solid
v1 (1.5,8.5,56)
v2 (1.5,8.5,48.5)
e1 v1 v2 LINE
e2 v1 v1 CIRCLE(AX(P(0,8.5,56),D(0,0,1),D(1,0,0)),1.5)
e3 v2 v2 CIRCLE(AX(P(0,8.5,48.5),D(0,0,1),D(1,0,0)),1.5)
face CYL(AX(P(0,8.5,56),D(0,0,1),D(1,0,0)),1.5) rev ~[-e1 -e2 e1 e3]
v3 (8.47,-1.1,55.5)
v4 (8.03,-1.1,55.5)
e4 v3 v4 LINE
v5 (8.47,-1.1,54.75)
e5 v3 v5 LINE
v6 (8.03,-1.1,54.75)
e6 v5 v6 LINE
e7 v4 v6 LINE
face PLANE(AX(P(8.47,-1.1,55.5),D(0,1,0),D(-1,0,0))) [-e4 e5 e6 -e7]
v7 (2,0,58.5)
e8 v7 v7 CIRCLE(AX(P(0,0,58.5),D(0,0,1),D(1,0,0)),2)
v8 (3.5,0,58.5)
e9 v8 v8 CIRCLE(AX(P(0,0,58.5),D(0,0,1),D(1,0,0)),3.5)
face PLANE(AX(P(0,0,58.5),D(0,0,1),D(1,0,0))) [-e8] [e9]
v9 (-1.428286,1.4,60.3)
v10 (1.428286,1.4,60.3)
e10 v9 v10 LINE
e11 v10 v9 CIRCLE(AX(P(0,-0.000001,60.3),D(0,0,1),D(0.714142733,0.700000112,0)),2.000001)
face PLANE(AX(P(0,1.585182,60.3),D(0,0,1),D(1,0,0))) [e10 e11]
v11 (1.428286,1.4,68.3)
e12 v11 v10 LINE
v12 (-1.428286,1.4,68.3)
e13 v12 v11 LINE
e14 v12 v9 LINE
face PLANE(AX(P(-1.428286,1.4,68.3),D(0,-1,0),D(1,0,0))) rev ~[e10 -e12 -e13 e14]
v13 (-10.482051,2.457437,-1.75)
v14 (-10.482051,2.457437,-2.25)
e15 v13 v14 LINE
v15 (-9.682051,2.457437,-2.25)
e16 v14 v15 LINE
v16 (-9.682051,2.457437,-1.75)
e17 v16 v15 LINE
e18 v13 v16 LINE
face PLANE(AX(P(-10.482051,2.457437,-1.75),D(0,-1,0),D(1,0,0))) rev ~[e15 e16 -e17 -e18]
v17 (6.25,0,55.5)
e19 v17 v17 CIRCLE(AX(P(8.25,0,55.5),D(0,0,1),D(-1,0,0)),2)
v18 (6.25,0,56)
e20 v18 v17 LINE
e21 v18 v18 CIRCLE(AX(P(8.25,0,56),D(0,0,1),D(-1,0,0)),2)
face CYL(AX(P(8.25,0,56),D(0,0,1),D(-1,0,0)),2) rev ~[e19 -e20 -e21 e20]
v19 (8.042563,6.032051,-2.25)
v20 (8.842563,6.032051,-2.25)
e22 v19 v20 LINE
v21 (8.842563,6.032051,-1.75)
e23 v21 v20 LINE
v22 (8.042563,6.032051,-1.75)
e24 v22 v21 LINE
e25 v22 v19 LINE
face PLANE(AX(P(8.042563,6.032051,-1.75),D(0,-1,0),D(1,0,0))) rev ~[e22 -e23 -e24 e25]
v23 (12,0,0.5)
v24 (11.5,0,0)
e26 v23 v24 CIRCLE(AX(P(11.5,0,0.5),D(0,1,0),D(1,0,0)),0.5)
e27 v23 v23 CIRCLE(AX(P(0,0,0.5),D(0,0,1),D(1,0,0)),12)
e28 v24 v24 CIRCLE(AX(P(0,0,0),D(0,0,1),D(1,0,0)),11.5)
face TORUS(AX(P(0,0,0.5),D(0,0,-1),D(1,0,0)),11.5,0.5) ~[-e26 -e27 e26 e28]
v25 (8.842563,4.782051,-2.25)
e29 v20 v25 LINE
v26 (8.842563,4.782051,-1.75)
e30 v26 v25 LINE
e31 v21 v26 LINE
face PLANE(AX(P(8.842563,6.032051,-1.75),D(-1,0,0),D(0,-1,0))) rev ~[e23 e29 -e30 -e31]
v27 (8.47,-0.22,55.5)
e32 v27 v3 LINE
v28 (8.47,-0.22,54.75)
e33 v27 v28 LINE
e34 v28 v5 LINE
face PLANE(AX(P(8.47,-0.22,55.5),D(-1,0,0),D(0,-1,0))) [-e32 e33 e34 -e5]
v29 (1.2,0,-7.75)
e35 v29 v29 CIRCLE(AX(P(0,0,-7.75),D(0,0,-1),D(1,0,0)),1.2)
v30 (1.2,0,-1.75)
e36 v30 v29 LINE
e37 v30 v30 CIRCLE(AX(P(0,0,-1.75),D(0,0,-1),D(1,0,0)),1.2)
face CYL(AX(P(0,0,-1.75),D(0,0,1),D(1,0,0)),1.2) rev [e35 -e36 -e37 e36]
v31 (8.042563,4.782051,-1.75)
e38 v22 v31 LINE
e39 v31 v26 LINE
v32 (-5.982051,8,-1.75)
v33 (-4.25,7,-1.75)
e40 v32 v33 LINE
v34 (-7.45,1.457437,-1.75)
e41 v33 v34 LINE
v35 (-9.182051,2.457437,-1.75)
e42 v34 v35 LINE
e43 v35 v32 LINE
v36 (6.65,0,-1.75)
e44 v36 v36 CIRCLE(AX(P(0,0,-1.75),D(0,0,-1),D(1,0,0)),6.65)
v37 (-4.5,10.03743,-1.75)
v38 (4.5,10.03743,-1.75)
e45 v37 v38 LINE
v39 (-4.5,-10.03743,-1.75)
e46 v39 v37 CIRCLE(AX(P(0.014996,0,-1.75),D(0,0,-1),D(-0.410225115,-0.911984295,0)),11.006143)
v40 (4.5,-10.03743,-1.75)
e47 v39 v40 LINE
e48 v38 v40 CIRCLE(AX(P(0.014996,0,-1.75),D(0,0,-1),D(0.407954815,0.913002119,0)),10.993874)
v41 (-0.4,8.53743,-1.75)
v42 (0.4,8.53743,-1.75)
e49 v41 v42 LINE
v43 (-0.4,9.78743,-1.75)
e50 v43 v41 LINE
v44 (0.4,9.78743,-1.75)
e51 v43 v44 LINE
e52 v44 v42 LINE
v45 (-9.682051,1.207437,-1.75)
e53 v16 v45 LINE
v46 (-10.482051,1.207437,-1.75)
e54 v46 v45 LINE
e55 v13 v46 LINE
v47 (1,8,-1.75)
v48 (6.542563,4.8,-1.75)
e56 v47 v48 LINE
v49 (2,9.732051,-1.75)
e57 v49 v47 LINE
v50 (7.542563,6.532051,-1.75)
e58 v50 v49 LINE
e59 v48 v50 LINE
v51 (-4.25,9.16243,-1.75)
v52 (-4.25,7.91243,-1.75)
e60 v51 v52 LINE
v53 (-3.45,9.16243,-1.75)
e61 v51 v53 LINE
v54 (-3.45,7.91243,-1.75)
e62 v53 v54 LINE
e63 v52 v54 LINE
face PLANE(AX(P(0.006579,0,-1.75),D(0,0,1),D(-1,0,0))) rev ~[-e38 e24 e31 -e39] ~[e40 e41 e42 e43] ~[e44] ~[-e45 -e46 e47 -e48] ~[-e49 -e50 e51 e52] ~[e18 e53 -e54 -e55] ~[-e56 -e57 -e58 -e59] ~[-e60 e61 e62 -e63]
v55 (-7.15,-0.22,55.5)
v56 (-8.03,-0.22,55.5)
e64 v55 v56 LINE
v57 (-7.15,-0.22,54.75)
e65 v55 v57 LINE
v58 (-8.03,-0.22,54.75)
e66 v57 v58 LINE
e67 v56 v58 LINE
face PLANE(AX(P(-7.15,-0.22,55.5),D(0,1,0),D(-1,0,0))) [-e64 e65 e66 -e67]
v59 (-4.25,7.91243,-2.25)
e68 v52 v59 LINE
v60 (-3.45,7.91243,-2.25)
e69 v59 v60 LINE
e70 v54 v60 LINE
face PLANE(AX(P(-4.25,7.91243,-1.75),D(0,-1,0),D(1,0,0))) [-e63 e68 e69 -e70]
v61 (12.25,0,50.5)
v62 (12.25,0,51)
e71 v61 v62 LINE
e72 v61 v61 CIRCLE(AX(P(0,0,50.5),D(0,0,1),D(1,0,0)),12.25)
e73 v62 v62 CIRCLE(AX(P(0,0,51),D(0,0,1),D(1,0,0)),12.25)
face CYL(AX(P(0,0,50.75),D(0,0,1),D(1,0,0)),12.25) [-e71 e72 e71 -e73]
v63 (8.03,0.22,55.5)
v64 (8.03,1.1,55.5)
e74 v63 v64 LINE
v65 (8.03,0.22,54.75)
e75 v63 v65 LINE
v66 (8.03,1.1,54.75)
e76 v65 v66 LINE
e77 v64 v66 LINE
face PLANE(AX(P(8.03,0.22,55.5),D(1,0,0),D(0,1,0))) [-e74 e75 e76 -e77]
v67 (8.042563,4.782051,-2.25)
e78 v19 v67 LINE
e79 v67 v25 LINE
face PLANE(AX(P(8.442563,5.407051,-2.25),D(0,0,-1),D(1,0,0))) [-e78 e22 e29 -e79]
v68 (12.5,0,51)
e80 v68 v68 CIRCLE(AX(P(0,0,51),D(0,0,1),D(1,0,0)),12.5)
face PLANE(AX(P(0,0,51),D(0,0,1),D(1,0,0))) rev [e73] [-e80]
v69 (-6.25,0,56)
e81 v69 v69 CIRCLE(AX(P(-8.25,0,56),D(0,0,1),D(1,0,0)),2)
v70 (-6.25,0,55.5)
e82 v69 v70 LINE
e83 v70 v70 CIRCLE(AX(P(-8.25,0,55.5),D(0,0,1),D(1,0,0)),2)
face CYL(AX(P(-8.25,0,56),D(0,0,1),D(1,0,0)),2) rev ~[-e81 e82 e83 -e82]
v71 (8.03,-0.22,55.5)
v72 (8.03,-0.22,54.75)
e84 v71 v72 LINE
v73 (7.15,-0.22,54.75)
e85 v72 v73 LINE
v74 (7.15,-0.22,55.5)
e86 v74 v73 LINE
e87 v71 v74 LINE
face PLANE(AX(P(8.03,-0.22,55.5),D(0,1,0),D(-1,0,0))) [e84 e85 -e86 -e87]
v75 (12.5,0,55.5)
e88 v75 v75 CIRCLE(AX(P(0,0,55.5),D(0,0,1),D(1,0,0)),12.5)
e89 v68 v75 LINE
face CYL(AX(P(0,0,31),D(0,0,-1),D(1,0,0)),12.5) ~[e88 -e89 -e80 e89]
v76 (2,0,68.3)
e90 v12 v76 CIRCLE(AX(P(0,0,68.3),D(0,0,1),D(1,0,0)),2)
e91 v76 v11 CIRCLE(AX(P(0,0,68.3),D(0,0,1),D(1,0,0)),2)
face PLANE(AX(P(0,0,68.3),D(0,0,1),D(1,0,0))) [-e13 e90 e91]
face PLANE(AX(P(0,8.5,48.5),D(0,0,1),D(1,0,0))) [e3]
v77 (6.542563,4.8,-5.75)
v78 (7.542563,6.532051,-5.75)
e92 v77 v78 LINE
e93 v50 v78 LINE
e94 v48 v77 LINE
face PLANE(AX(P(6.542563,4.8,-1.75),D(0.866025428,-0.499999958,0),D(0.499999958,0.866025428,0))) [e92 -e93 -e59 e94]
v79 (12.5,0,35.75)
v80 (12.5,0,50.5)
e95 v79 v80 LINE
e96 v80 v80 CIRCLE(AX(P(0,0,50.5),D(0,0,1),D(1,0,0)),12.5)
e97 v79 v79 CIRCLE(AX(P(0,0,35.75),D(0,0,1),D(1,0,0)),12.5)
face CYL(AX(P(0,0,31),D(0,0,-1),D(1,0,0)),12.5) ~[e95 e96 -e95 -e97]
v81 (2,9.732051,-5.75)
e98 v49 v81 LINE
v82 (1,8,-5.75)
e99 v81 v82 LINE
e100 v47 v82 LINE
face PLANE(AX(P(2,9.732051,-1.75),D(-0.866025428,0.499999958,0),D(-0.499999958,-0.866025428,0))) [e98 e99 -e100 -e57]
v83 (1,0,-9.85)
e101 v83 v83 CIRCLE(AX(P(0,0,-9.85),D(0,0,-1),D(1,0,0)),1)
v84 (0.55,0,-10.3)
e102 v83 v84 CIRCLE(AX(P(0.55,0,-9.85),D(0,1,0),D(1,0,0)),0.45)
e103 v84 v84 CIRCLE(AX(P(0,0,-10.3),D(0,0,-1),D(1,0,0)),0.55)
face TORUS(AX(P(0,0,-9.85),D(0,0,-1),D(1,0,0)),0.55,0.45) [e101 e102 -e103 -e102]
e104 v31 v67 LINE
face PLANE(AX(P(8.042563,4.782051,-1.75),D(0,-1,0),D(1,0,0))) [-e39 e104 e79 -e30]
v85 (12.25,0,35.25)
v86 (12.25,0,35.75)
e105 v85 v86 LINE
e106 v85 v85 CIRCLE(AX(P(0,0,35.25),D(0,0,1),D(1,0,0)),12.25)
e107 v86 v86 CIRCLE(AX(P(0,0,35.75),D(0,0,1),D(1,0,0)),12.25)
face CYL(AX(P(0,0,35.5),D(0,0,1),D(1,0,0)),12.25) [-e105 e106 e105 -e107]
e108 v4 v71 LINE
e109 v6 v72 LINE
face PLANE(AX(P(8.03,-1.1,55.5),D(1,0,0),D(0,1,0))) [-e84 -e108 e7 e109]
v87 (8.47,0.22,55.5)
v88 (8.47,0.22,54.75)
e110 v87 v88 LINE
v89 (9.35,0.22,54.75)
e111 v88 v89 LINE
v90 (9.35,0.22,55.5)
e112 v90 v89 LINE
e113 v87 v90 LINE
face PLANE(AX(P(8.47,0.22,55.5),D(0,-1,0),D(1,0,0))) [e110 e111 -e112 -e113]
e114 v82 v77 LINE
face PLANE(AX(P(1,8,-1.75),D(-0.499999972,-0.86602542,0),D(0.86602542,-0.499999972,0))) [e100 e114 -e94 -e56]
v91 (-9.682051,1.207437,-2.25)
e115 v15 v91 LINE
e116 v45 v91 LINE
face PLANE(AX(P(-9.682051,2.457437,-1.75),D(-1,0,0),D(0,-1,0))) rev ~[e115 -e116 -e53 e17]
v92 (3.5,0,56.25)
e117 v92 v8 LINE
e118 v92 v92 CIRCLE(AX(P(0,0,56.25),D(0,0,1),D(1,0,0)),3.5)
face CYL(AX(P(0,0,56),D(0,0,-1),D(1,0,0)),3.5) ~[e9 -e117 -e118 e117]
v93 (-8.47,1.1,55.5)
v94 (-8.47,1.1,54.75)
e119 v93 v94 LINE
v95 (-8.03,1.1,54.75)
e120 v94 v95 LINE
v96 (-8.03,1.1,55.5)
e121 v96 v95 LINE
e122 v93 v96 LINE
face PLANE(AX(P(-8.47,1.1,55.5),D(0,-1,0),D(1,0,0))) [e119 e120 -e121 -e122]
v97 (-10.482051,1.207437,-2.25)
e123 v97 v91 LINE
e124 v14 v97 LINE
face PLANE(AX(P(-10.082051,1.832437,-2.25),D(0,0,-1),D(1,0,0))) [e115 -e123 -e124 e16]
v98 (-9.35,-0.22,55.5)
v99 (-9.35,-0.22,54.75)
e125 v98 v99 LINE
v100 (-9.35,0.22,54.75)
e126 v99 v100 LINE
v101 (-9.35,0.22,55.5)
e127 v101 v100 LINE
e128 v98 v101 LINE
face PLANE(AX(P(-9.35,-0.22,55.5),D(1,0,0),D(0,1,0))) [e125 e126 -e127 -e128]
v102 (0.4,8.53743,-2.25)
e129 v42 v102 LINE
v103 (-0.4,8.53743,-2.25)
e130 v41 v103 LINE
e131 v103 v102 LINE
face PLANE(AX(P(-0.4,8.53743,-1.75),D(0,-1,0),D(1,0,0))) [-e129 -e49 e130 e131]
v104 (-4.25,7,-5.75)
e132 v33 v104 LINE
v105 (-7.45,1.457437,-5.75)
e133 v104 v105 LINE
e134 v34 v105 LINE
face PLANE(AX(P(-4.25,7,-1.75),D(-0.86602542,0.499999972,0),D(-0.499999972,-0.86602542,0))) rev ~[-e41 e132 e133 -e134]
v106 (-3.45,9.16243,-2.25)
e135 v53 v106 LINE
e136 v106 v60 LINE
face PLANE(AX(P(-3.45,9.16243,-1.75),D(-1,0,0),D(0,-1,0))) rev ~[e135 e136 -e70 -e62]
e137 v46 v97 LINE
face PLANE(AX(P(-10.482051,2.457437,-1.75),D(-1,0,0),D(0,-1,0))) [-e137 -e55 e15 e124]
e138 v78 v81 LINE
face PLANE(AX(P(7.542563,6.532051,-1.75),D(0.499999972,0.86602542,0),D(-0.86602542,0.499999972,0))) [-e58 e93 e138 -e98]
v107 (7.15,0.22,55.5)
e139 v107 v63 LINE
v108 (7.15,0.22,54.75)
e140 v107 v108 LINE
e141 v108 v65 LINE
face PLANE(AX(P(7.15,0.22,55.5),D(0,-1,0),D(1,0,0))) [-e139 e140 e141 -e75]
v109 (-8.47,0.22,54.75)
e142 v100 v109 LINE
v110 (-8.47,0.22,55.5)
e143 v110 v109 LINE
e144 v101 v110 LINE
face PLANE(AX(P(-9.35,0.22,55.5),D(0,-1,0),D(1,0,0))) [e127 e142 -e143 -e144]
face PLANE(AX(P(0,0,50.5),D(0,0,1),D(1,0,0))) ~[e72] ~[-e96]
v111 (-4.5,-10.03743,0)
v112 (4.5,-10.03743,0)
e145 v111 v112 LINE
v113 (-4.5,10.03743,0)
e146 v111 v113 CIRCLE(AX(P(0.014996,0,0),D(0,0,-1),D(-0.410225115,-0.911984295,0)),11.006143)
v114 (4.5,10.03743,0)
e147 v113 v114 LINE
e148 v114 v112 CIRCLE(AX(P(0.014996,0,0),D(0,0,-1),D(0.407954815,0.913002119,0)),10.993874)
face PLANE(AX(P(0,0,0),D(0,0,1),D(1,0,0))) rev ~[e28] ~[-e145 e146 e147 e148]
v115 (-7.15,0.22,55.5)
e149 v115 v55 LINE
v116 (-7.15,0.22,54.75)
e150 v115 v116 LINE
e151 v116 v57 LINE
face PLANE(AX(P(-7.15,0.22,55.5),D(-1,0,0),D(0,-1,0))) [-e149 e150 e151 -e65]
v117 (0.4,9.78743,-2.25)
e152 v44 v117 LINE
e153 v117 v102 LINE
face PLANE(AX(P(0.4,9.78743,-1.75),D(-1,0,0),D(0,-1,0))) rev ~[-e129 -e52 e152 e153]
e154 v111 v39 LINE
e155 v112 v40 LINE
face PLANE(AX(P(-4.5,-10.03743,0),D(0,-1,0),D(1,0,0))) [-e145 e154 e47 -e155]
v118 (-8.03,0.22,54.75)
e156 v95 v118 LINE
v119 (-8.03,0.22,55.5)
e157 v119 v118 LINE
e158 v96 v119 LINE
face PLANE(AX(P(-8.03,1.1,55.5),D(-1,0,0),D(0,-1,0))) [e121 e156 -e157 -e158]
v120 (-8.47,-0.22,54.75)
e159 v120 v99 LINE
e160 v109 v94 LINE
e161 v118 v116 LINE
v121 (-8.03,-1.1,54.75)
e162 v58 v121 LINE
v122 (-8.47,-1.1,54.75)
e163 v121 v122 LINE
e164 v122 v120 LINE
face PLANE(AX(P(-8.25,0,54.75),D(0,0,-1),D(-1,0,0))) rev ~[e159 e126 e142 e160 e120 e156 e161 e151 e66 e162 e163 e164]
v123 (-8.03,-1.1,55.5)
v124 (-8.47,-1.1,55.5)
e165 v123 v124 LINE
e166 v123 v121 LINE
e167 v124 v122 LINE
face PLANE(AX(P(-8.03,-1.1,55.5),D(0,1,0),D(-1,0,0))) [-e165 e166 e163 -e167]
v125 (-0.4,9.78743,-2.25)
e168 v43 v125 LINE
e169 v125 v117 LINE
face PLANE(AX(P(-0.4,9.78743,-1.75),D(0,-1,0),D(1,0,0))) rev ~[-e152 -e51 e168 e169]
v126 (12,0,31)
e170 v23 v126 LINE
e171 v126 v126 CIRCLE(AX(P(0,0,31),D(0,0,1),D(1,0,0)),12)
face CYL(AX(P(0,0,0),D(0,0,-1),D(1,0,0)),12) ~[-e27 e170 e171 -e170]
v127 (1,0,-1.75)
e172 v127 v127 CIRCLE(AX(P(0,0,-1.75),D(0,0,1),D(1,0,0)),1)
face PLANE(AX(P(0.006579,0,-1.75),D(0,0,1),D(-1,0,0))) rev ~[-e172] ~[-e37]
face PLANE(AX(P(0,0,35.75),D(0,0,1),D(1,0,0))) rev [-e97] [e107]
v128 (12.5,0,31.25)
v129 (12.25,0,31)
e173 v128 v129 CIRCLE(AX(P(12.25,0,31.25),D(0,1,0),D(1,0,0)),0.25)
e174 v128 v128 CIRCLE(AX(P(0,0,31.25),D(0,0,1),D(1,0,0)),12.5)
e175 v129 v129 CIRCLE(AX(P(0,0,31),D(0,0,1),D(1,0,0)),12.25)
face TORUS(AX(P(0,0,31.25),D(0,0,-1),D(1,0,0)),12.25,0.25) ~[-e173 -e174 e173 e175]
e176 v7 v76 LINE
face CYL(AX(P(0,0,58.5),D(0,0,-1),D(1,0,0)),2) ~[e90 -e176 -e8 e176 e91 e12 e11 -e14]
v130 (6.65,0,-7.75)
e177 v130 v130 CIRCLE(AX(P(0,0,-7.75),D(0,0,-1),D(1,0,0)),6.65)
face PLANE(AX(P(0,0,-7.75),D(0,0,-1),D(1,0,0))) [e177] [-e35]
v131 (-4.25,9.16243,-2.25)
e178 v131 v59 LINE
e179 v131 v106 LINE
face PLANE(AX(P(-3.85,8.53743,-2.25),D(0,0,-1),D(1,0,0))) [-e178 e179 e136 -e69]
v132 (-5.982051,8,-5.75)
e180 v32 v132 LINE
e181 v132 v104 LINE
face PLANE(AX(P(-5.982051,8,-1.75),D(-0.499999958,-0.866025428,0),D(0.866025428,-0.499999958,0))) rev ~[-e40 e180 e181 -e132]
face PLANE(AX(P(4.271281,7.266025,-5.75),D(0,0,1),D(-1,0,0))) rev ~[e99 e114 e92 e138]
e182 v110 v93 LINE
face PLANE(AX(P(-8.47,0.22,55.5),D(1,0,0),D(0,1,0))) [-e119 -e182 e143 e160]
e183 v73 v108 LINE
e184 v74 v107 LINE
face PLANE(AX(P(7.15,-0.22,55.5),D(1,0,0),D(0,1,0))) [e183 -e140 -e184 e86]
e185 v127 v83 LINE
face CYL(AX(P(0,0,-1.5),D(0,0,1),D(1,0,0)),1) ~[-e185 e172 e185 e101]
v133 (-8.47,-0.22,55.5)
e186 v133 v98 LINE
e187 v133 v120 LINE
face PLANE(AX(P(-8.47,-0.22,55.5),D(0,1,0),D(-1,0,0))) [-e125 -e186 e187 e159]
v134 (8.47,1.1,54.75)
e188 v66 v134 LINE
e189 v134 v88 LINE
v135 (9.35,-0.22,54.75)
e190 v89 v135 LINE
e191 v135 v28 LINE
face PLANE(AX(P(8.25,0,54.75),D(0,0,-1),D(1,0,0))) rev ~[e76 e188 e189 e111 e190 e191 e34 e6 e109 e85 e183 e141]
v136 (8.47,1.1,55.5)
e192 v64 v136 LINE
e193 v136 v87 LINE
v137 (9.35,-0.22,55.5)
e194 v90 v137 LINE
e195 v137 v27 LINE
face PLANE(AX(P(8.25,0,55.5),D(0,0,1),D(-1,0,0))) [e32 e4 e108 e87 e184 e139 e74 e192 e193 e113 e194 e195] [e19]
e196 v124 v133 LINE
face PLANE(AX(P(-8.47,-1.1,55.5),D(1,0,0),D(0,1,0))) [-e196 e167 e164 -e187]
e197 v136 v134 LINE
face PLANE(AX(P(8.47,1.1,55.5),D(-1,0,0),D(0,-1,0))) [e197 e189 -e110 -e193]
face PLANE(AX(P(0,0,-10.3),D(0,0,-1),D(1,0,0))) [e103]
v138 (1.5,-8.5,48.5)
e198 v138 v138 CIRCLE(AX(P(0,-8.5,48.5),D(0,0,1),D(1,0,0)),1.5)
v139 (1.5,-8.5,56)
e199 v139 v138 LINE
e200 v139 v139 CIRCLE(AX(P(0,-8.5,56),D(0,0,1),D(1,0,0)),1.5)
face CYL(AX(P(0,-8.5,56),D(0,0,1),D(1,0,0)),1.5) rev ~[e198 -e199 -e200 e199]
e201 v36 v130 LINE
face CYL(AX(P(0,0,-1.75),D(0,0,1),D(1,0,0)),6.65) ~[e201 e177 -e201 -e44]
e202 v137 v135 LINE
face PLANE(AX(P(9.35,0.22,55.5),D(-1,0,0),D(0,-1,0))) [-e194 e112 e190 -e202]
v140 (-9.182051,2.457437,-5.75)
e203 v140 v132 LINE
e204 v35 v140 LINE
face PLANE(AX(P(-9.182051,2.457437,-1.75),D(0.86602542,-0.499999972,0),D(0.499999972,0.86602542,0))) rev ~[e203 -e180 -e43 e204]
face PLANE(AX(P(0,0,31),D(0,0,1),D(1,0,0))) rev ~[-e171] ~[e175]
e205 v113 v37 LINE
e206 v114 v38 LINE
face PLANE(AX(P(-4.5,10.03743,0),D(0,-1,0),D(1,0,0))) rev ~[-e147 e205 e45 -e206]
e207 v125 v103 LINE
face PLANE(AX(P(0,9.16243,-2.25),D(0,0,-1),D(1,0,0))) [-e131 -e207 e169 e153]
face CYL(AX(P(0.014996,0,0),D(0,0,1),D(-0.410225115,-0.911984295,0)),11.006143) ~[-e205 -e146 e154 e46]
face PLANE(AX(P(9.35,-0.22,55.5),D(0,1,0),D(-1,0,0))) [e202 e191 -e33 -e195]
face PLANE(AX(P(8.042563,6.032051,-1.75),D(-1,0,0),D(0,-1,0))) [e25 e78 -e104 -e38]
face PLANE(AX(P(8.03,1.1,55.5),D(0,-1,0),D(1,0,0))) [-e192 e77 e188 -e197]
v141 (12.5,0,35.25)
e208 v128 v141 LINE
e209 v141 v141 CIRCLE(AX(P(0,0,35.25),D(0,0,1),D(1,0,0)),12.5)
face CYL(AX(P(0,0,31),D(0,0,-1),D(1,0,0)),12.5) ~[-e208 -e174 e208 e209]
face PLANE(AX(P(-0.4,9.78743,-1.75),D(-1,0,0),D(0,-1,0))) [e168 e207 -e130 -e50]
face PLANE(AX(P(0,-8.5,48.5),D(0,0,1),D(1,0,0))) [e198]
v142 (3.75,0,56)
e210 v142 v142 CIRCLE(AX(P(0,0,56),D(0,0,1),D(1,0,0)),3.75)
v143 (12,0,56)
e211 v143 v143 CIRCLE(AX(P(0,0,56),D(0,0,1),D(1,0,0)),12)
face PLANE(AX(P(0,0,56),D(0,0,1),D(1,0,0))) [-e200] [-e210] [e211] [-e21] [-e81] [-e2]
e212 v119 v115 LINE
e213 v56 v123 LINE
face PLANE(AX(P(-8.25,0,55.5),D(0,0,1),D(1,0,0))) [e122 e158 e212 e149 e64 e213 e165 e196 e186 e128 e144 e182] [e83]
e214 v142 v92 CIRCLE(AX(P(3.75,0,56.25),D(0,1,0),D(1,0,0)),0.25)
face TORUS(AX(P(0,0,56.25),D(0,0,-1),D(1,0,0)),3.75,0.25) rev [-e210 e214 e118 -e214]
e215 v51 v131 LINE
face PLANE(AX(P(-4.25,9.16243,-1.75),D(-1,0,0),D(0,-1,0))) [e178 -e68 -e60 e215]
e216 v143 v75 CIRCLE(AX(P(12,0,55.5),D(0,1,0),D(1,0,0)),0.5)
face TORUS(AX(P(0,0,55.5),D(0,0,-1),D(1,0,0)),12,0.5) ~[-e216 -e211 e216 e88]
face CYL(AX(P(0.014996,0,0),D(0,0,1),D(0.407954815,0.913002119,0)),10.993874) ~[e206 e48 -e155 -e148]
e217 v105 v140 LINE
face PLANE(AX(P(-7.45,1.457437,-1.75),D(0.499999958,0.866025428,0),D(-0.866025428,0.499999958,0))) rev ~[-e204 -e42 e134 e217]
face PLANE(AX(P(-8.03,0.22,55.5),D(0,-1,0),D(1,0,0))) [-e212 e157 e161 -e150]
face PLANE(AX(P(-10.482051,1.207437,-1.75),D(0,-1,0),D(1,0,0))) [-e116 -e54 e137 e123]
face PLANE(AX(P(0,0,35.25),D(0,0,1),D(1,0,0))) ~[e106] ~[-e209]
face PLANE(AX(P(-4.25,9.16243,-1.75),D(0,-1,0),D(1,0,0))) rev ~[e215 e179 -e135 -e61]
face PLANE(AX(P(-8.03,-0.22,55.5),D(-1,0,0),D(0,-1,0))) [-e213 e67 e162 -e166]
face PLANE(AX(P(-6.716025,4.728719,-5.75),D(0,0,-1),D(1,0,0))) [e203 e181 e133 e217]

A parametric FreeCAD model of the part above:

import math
import FreeCAD as App
import Part
import Sketcher

V = App.Vector
Q = App.Units.Quantity


def edges_at(feature, points):
    """Names of the edges that pass closest to the given points."""
    edges = feature.Shape.Edges
    near = lambda p: min(range(len(edges)), key=lambda i: edges[i].distToShape(Part.Vertex(*p))[0])
    return sorted({f"Edge{near(p) + 1}" for p in points})

doc = App.newDocument("Part")
body = doc.addObject("PartDesign::Body", "Body")

sketch1 = doc.addObject("Sketcher::SketchObject", "Sketch")
body.addObject(sketch1)
sketch1.AttachmentSupport = (doc.XY_Plane, [""])
sketch1.MapMode = "FlatFace"
sketch1.addGeometry(Part.Circle(V(0, 0, 0), V(0, 0, 1), 12), False)
sketch1.addConstraint([
    Sketcher.Constraint("Coincident", 0, 3, -1, 1),
    Sketcher.Constraint("Diameter", 0, Q("24 mm")),
])
pad1 = doc.addObject("PartDesign::Pad", "Pad")
body.addObject(pad1)
pad1.Profile = sketch1
pad1.Length = 31

sketch2 = doc.addObject("Sketcher::SketchObject", "Sketch001")
body.addObject(sketch2)
sketch2.AttachmentSupport = (doc.XY_Plane, [""])
sketch2.MapMode = "FlatFace"
sketch2.AttachmentOffset = App.Placement(V(0, 0, 31), App.Rotation())
sketch2.addGeometry(Part.Circle(V(0, 0, 0), V(0, 0, 1), 12.5), False)
sketch2.addConstraint([
    Sketcher.Constraint("Coincident", 0, 3, -1, 1),
    Sketcher.Constraint("Diameter", 0, Q("25 mm")),
])
pad2 = doc.addObject("PartDesign::Pad", "Pad001")
body.addObject(pad2)
pad2.Profile = sketch2
pad2.Length = 25

sketch3 = doc.addObject("Sketcher::SketchObject", "Sketch002")
body.addObject(sketch3)
sketch3.AttachmentSupport = (doc.XY_Plane, [""])
sketch3.MapMode = "FlatFace"
sketch3.AttachmentOffset = App.Placement(V(0, 0, 56), App.Rotation())
sketch3.addGeometry(Part.Circle(V(0, 0, 0), V(0, 0, 1), 3.5), False)
sketch3.addConstraint([
    Sketcher.Constraint("Coincident", 0, 3, -1, 1),
    Sketcher.Constraint("Diameter", 0, Q("7 mm")),
])
pad3 = doc.addObject("PartDesign::Pad", "Pad002")
body.addObject(pad3)
pad3.Profile = sketch3
pad3.Length = 2.5

sketch4 = doc.addObject("Sketcher::SketchObject", "Sketch003")
body.addObject(sketch4)
sketch4.AttachmentSupport = (doc.XY_Plane, [""])
sketch4.MapMode = "FlatFace"
sketch4.AttachmentOffset = App.Placement(V(0, 0, 58.5), App.Rotation())
sketch4.addGeometry(Part.Circle(V(0, 0, 0), V(0, 0, 1), 2), False)
sketch4.addConstraint([
    Sketcher.Constraint("Coincident", 0, 3, -1, 1),
    Sketcher.Constraint("Diameter", 0, Q("4 mm")),
])
pad4 = doc.addObject("PartDesign::Pad", "Pad003")
body.addObject(pad4)
pad4.Profile = sketch4
pad4.Length = 9.8

sketch5 = doc.addObject("Sketcher::SketchObject", "Sketch004")
body.addObject(sketch5)
sketch5.AttachmentSupport = (doc.XY_Plane, [""])
sketch5.MapMode = "FlatFace"
sketch5.AttachmentOffset = App.Placement(V(0, 0, 68.3), App.Rotation())
sketch5.addGeometry([
    Part.ArcOfCircle(Part.Circle(V(0, -0.000001, 0), V(0, 0, 1), 2.000001), math.radians(44.427013), math.radians(135.572987)),
    Part.LineSegment(V(-1.428286, 1.4, 0), V(1.428286, 1.4, 0)),
], False)
sketch5.addConstraint([
    Sketcher.Constraint("Coincident", 0, 1, 1, 2),
    Sketcher.Constraint("Coincident", 1, 1, 0, 2),
    Sketcher.Constraint("Horizontal", 1),
    Sketcher.Constraint("Coincident", 0, 3, -1, 1),
    Sketcher.Constraint("Radius", 0, Q("2.000001 mm")),
    Sketcher.Constraint("DistanceY", -1, 1, 0, 1, Q("1.4 mm")),
])
pocket1 = doc.addObject("PartDesign::Pocket", "Pocket")
body.addObject(pocket1)
pocket1.Profile = sketch5
pocket1.Length = 8

sketch6 = doc.addObject("Sketcher::SketchObject", "Sketch005")
body.addObject(sketch6)
sketch6.AttachmentSupport = (doc.XY_Plane, [""])
sketch6.MapMode = "FlatFace"
sketch6.AttachmentOffset = App.Placement(V(0, 0, 56), App.Rotation())
sketch6.addGeometry(Part.Circle(V(-8.25, 0, 0), V(0, 0, 1), 2), False)
sketch6.addConstraint([
    Sketcher.Constraint("PointOnObject", 0, 3, -1),
    Sketcher.Constraint("Diameter", 0, Q("4 mm")),
    Sketcher.Constraint("DistanceX", 0, 3, -1, 1, Q("8.25 mm")),
])
pocket2 = doc.addObject("PartDesign::Pocket", "Pocket001")
body.addObject(pocket2)
pocket2.Profile = sketch6
pocket2.Length = 0.5

sketch7 = doc.addObject("Sketcher::SketchObject", "Sketch006")
body.addObject(sketch7)
sketch7.AttachmentSupport = (doc.XY_Plane, [""])
sketch7.MapMode = "FlatFace"
sketch7.AttachmentOffset = App.Placement(V(0, 0, 55.5), App.Rotation())
sketch7.addGeometry([
    Part.LineSegment(V(-8.47, 1.1, 0), V(-8.47, 0.22, 0)),
    Part.LineSegment(V(-8.47, 0.22, 0), V(-9.35, 0.22, 0)),
    Part.LineSegment(V(-9.35, 0.22, 0), V(-9.35, -0.22, 0)),
    Part.LineSegment(V(-9.35, -0.22, 0), V(-8.47, -0.22, 0)),
    Part.LineSegment(V(-8.47, -0.22, 0), V(-8.47, -1.1, 0)),
    Part.LineSegment(V(-8.47, -1.1, 0), V(-8.03, -1.1, 0)),
    Part.LineSegment(V(-8.03, -1.1, 0), V(-8.03, -0.22, 0)),
    Part.LineSegment(V(-8.03, -0.22, 0), V(-7.15, -0.22, 0)),
    Part.LineSegment(V(-7.15, -0.22, 0), V(-7.15, 0.22, 0)),
    Part.LineSegment(V(-7.15, 0.22, 0), V(-8.03, 0.22, 0)),
    Part.LineSegment(V(-8.03, 0.22, 0), V(-8.03, 1.1, 0)),
    Part.LineSegment(V(-8.03, 1.1, 0), V(-8.47, 1.1, 0)),
], False)
sketch7.addConstraint([
    Sketcher.Constraint("Coincident", 0, 2, 1, 1),
    Sketcher.Constraint("Coincident", 1, 2, 2, 1),
    Sketcher.Constraint("Coincident", 2, 2, 3, 1),
    Sketcher.Constraint("Coincident", 3, 2, 4, 1),
    Sketcher.Constraint("Coincident", 4, 2, 5, 1),
    Sketcher.Constraint("Coincident", 5, 2, 6, 1),
    Sketcher.Constraint("Coincident", 6, 2, 7, 1),
    Sketcher.Constraint("Coincident", 7, 2, 8, 1),
    Sketcher.Constraint("Coincident", 8, 2, 9, 1),
    Sketcher.Constraint("Coincident", 9, 2, 10, 1),
    Sketcher.Constraint("Coincident", 10, 2, 11, 1),
    Sketcher.Constraint("Coincident", 11, 2, 0, 1),
    Sketcher.Constraint("Vertical", 0),
    Sketcher.Constraint("Horizontal", 1),
    Sketcher.Constraint("Vertical", 2),
    Sketcher.Constraint("Horizontal", 3),
    Sketcher.Constraint("Vertical", 4),
    Sketcher.Constraint("Horizontal", 5),
    Sketcher.Constraint("Vertical", 6),
    Sketcher.Constraint("Horizontal", 7),
    Sketcher.Constraint("Vertical", 8),
    Sketcher.Constraint("Horizontal", 9),
    Sketcher.Constraint("Vertical", 10),
    Sketcher.Constraint("Horizontal", 11),
    Sketcher.Constraint("Symmetric", 0, 2, 3, 2, -1),
    Sketcher.Constraint("Symmetric", 6, 2, 9, 2, -1),
    Sketcher.Constraint("Horizontal", 3, 2, 6, 2),
    Sketcher.Constraint("Equal", 3, 7),
    Sketcher.Constraint("Equal", 9, 0),
    Sketcher.Constraint("Equal", 11, 2),
    Sketcher.Constraint("Equal", 0, 4),
    Sketcher.Constraint("DistanceX", 1, 2, 1, 1, Q("0.88 mm")),
    Sketcher.Constraint("DistanceX", 5, 1, 5, 2, Q("0.44 mm")),
    Sketcher.Constraint("DistanceX", 0, 2, -1, 1, Q("8.47 mm")),
])
pocket3 = doc.addObject("PartDesign::Pocket", "Pocket002")
body.addObject(pocket3)
pocket3.Profile = sketch7
pocket3.Length = 0.75
doc.recompute()

polarpattern = doc.addObject("PartDesign::PolarPattern", "PolarPattern")
body.addObject(polarpattern)
polarpattern.Originals = [pocket2, pocket3]
polarpattern.Axis = (doc.Z_Axis, [""])
polarpattern.Angle = 360
polarpattern.Occurrences = 2
body.Tip = polarpattern

sketch8 = doc.addObject("Sketcher::SketchObject", "Sketch007")
body.addObject(sketch8)
sketch8.AttachmentSupport = (doc.XY_Plane, [""])
sketch8.MapMode = "FlatFace"
sketch8.AttachmentOffset = App.Placement(V(0, 0, 56), App.Rotation())
sketch8.addGeometry([
    Part.Circle(V(0, 8.5, 0), V(0, 0, 1), 1.5),
    Part.Circle(V(0, -8.5, 0), V(0, 0, 1), 1.5),
], False)
sketch8.addConstraint([
    Sketcher.Constraint("Equal", 0, 1),
    Sketcher.Constraint("Symmetric", 0, 3, 1, 3, -1, 1),
    Sketcher.Constraint("PointOnObject", 0, 3, -2),
    Sketcher.Constraint("Diameter", 0, Q("3 mm")),
    Sketcher.Constraint("DistanceY", 1, 3, 0, 3, Q("17 mm")),
])
pocket4 = doc.addObject("PartDesign::Pocket", "Pocket003")
body.addObject(pocket4)
pocket4.Profile = sketch8
pocket4.Length = 7.5
doc.recompute()

fillet = doc.addObject("PartDesign::Fillet", "Fillet")
body.addObject(fillet)
fillet.Base = (pocket4, edges_at(pocket4, [(-3.5, 0, 56)]))
fillet.Radius = 0.25
doc.recompute()

fillet2 = doc.addObject("PartDesign::Fillet", "Fillet001")
body.addObject(fillet2)
fillet2.Base = (fillet, edges_at(fillet, [(-12.5, 0, 56)]))
fillet2.Radius = 0.5
doc.recompute()

fillet3 = doc.addObject("PartDesign::Fillet", "Fillet002")
body.addObject(fillet3)
fillet3.Base = (fillet2, edges_at(fillet2, [(-12.5, 0, 31)]))
fillet3.Radius = 0.25
doc.recompute()

fillet4 = doc.addObject("PartDesign::Fillet", "Fillet003")
body.addObject(fillet4)
fillet4.Base = (fillet3, edges_at(fillet3, [(-12, 0, 0)]))
fillet4.Radius = 0.5

sketch9 = doc.addObject("Sketcher::SketchObject", "Sketch008")
body.addObject(sketch9)
sketch9.AttachmentSupport = (doc.XY_Plane, [""])
sketch9.MapMode = "FlatFace"
sketch9.addGeometry(Part.Circle(V(0, 0, 0), V(0, 0, 1), 3), False)
sketch9.addConstraint([
    Sketcher.Constraint("Coincident", 0, 3, -1, 1),
    Sketcher.Constraint("Diameter", 0, Q("6 mm")),
])
pad5 = doc.addObject("PartDesign::Pad", "Pad004")
body.addObject(pad5)
pad5.Profile = sketch9
pad5.Length = 1.5
pad5.Reversed = True

sketch10 = doc.addObject("Sketcher::SketchObject", "Sketch009")
body.addObject(sketch10)
sketch10.AttachmentSupport = (doc.XY_Plane, [""])
sketch10.MapMode = "FlatFace"
sketch10.AttachmentOffset = App.Placement(V(0, 0, -1.5), App.Rotation())
sketch10.addGeometry(Part.Circle(V(0, 0, 0), V(0, 0, 1), 1), False)
sketch10.addConstraint([
    Sketcher.Constraint("Coincident", 0, 3, -1, 1),
    Sketcher.Constraint("Diameter", 0, Q("2 mm")),
])
pad6 = doc.addObject("PartDesign::Pad", "Pad005")
body.addObject(pad6)
pad6.Profile = sketch10
pad6.Length = 8.8
pad6.Reversed = True
doc.recompute()

fillet5 = doc.addObject("PartDesign::Fillet", "Fillet004")
body.addObject(fillet5)
fillet5.Base = (pad6, edges_at(pad6, [(-1, 0, -10.3)]))
fillet5.Radius = 0.45
doc.recompute()

fillet6 = doc.addObject("PartDesign::Fillet", "Fillet005")
body.addObject(fillet6)
fillet6.Base = (fillet5, edges_at(fillet5, [(-3, 0, 0)]))
fillet6.Radius = 0.5

sketch11 = doc.addObject("Sketcher::SketchObject", "Sketch010")
body.addObject(sketch11)
sketch11.AttachmentSupport = (doc.XZ_Plane, [""])
sketch11.MapMode = "FlatFace"
sketch11.addGeometry([
    Part.LineSegment(V(12.25, 51, 0), V(12.25, 50.5, 0)),
    Part.LineSegment(V(12.25, 50.5, 0), V(12.5, 50.5, 0)),
    Part.LineSegment(V(12.5, 50.5, 0), V(12.5, 51, 0)),
    Part.LineSegment(V(12.5, 51, 0), V(12.25, 51, 0)),
    Part.LineSegment(V(12.25, 35.75, 0), V(12.25, 35.25, 0)),
    Part.LineSegment(V(12.25, 35.25, 0), V(12.5, 35.25, 0)),
    Part.LineSegment(V(12.5, 35.25, 0), V(12.5, 35.75, 0)),
    Part.LineSegment(V(12.5, 35.75, 0), V(12.25, 35.75, 0)),
], False)
sketch11.addConstraint([
    Sketcher.Constraint("Coincident", 0, 2, 1, 1),
    Sketcher.Constraint("Coincident", 1, 2, 2, 1),
    Sketcher.Constraint("Coincident", 2, 2, 3, 1),
    Sketcher.Constraint("Coincident", 3, 2, 0, 1),
    Sketcher.Constraint("Coincident", 4, 2, 5, 1),
    Sketcher.Constraint("Coincident", 5, 2, 6, 1),
    Sketcher.Constraint("Coincident", 6, 2, 7, 1),
    Sketcher.Constraint("Coincident", 7, 2, 4, 1),
    Sketcher.Constraint("Vertical", 0),
    Sketcher.Constraint("Horizontal", 1),
    Sketcher.Constraint("Vertical", 2),
    Sketcher.Constraint("Horizontal", 3),
    Sketcher.Constraint("Vertical", 4),
    Sketcher.Constraint("Horizontal", 5),
    Sketcher.Constraint("Vertical", 6),
    Sketcher.Constraint("Horizontal", 7),
    Sketcher.Constraint("Vertical", 3, 2, 4, 2),
    Sketcher.Constraint("Vertical", 2, 2, 5, 2),
    Sketcher.Constraint("Equal", 2, 4),
    Sketcher.Constraint("DistanceY", 0, 2, 0, 1, Q("0.5 mm")),
    Sketcher.Constraint("DistanceY", -1, 1, 2, 2, Q("51 mm")),
    Sketcher.Constraint("DistanceX", 1, 1, 1, 2, Q("0.25 mm")),
    Sketcher.Constraint("DistanceX", -1, 1, 1, 2, Q("12.5 mm")),
    Sketcher.Constraint("DistanceY", -1, 1, 4, 2, Q("35.25 mm")),
])
groove = doc.addObject("PartDesign::Groove", "Groove")
body.addObject(groove)
groove.Profile = sketch11
groove.ReferenceAxis = (sketch11, ["V_Axis"])
groove.Angle = 360

sketch12 = doc.addObject("Sketcher::SketchObject", "Sketch011")
body.addObject(sketch12)
sketch12.AttachmentSupport = (doc.XY_Plane, [""])
sketch12.MapMode = "FlatFace"
sketch12.addGeometry([
    Part.LineSegment(V(4.5, -10.03743, 0), V(-4.5, -10.03743, 0)),
    Part.ArcOfCircle(Part.Circle(V(0.014996, 0, 0), V(0, 0, 1), 11.006143), math.radians(114.218977), math.radians(245.781023)),
    Part.LineSegment(V(-4.5, 10.03743, 0), V(4.5, 10.03743, 0)),
    Part.ArcOfCircle(Part.Circle(V(0.014996, 0, 0), V(0, 0, 1), 10.993874), math.radians(-65.923576), math.radians(65.923576)),
], False)
sketch12.addConstraint([
    Sketcher.Constraint("Coincident", 0, 2, 1, 2),
    Sketcher.Constraint("Coincident", 1, 1, 2, 1),
    Sketcher.Constraint("Coincident", 2, 2, 3, 2),
    Sketcher.Constraint("Coincident", 3, 1, 0, 1),
    Sketcher.Constraint("Horizontal", 0),
    Sketcher.Constraint("Horizontal", 2),
    Sketcher.Constraint("Coincident", 3, 3, 1, 3),
    Sketcher.Constraint("Symmetric", 0, 2, 2, 2, -1, 1),
    Sketcher.Constraint("PointOnObject", 1, 3, -1),
    Sketcher.Constraint("DistanceX", 0, 2, 0, 1, Q("9 mm")),
    Sketcher.Constraint("Radius", 1, Q("11.006143 mm")),
    Sketcher.Constraint("Radius", 3, Q("10.993874 mm")),
])
pad7 = doc.addObject("PartDesign::Pad", "Pad006")
body.addObject(pad7)
pad7.Profile = sketch12
pad7.Length = 1.75
pad7.Reversed = True

sketch13 = doc.addObject("Sketcher::SketchObject", "Sketch012")
body.addObject(sketch13)
sketch13.AttachmentSupport = (doc.XY_Plane, [""])
sketch13.MapMode = "FlatFace"
sketch13.AttachmentOffset = App.Placement(V(0, 0, -1.75), App.Rotation())
sketch13.addGeometry([
    Part.Circle(V(0, 0, 0), V(0, 0, 1), 6.65),
    Part.Circle(V(0, 0, 0), V(0, 0, 1), 1.2),
], False)
sketch13.addConstraint([
    Sketcher.Constraint("Coincident", 0, 3, -1, 1),
    Sketcher.Constraint("Coincident", 1, 3, -1, 1),
    Sketcher.Constraint("Diameter", 0, Q("13.3 mm")),
    Sketcher.Constraint("Diameter", 1, Q("2.4 mm")),
])
pad8 = doc.addObject("PartDesign::Pad", "Pad007")
body.addObject(pad8)
pad8.Profile = sketch13
pad8.Length = 6
pad8.Reversed = True

sketch14 = doc.addObject("Sketcher::SketchObject", "Sketch013")
body.addObject(sketch14)
sketch14.AttachmentSupport = (doc.XY_Plane, [""])
sketch14.MapMode = "FlatFace"
sketch14.AttachmentOffset = App.Placement(V(0, 0, -1.75), App.Rotation())
sketch14.addGeometry([
    Part.LineSegment(V(6.542563, 4.8, 0), V(1, 8, 0)),
    Part.LineSegment(V(1, 8, 0), V(2, 9.732051, 0)),
    Part.LineSegment(V(2, 9.732051, 0), V(7.542563, 6.532051, 0)),
    Part.LineSegment(V(7.542563, 6.532051, 0), V(6.542563, 4.8, 0)),
    Part.LineSegment(V(-9.182051, 2.457437, 0), V(-5.982051, 8, 0)),
    Part.LineSegment(V(-5.982051, 8, 0), V(-4.25, 7, 0)),
    Part.LineSegment(V(-4.25, 7, 0), V(-7.45, 1.457437, 0)),
    Part.LineSegment(V(-7.45, 1.457437, 0), V(-9.182051, 2.457437, 0)),
], False)
sketch14.addConstraint([
    Sketcher.Constraint("Coincident", 0, 2, 1, 1),
    Sketcher.Constraint("Coincident", 1, 2, 2, 1),
    Sketcher.Constraint("Coincident", 2, 2, 3, 1),
    Sketcher.Constraint("Coincident", 3, 2, 0, 1),
    Sketcher.Constraint("Coincident", 4, 2, 5, 1),
    Sketcher.Constraint("Coincident", 5, 2, 6, 1),
    Sketcher.Constraint("Coincident", 6, 2, 7, 1),
    Sketcher.Constraint("Coincident", 7, 2, 4, 1),
    Sketcher.Constraint("Perpendicular", 0, 1),
    Sketcher.Constraint("Perpendicular", 1, 2),
    Sketcher.Constraint("Perpendicular", 2, 3),
    Sketcher.Constraint("Parallel", 3, 4),
    Sketcher.Constraint("Perpendicular", 4, 5),
    Sketcher.Constraint("Perpendicular", 5, 6),
    Sketcher.Constraint("Perpendicular", 6, 7),
    Sketcher.Constraint("Horizontal", 0, 2, 4, 2),
    Sketcher.Constraint("Equal", 2, 4),
    Sketcher.Constraint("Equal", 3, 5),
    Sketcher.Constraint("Angle", 0, Q("150.000002 deg")),
    Sketcher.Constraint("Distance", 1, Q("2 mm")),
    Sketcher.Constraint("DistanceX", -1, 1, 0, 2, Q("1 mm")),
    Sketcher.Constraint("DistanceY", -1, 1, 0, 2, Q("8 mm")),
    Sketcher.Constraint("Distance", 0, Q("6.4 mm")),
    Sketcher.Constraint("DistanceX", 5, 2, -1, 1, Q("4.25 mm")),
])
pad9 = doc.addObject("PartDesign::Pad", "Pad008")
body.addObject(pad9)
pad9.Profile = sketch14
pad9.Length = 4
pad9.Reversed = True

sketch15 = doc.addObject("Sketcher::SketchObject", "Sketch014")
body.addObject(sketch15)
sketch15.AttachmentSupport = (doc.XY_Plane, [""])
sketch15.MapMode = "FlatFace"
sketch15.AttachmentOffset = App.Placement(V(0, 0, -1.75), App.Rotation())
sketch15.addGeometry([
    Part.LineSegment(V(-4.25, 7.91243, 0), V(-4.25, 9.16243, 0)),
    Part.LineSegment(V(-4.25, 9.16243, 0), V(-3.45, 9.16243, 0)),
    Part.LineSegment(V(-3.45, 9.16243, 0), V(-3.45, 7.91243, 0)),
    Part.LineSegment(V(-3.45, 7.91243, 0), V(-4.25, 7.91243, 0)),
    Part.LineSegment(V(-0.4, 8.53743, 0), V(-0.4, 9.78743, 0)),
    Part.LineSegment(V(-0.4, 9.78743, 0), V(0.4, 9.78743, 0)),
    Part.LineSegment(V(0.4, 9.78743, 0), V(0.4, 8.53743, 0)),
    Part.LineSegment(V(0.4, 8.53743, 0), V(-0.4, 8.53743, 0)),
    Part.LineSegment(V(-10.482051, 1.207437, 0), V(-10.482051, 2.457437, 0)),
    Part.LineSegment(V(-10.482051, 2.457437, 0), V(-9.682051, 2.457437, 0)),
    Part.LineSegment(V(-9.682051, 2.457437, 0), V(-9.682051, 1.207437, 0)),
    Part.LineSegment(V(-9.682051, 1.207437, 0), V(-10.482051, 1.207437, 0)),
    Part.LineSegment(V(8.042563, 4.782051, 0), V(8.042563, 6.032051, 0)),
    Part.LineSegment(V(8.042563, 6.032051, 0), V(8.842563, 6.032051, 0)),
    Part.LineSegment(V(8.842563, 6.032051, 0), V(8.842563, 4.782051, 0)),
    Part.LineSegment(V(8.842563, 4.782051, 0), V(8.042563, 4.782051, 0)),
], False)
sketch15.addConstraint([
    Sketcher.Constraint("Coincident", 0, 2, 1, 1),
    Sketcher.Constraint("Coincident", 1, 2, 2, 1),
    Sketcher.Constraint("Coincident", 2, 2, 3, 1),
    Sketcher.Constraint("Coincident", 3, 2, 0, 1),
    Sketcher.Constraint("Coincident", 4, 2, 5, 1),
    Sketcher.Constraint("Coincident", 5, 2, 6, 1),
    Sketcher.Constraint("Coincident", 6, 2, 7, 1),
    Sketcher.Constraint("Coincident", 7, 2, 4, 1),
    Sketcher.Constraint("Coincident", 8, 2, 9, 1),
    Sketcher.Constraint("Coincident", 9, 2, 10, 1),
    Sketcher.Constraint("Coincident", 10, 2, 11, 1),
    Sketcher.Constraint("Coincident", 11, 2, 8, 1),
    Sketcher.Constraint("Coincident", 12, 2, 13, 1),
    Sketcher.Constraint("Coincident", 13, 2, 14, 1),
    Sketcher.Constraint("Coincident", 14, 2, 15, 1),
    Sketcher.Constraint("Coincident", 15, 2, 12, 1),
    Sketcher.Constraint("Vertical", 0),
    Sketcher.Constraint("Horizontal", 1),
    Sketcher.Constraint("Vertical", 2),
    Sketcher.Constraint("Horizontal", 3),
    Sketcher.Constraint("Vertical", 4),
    Sketcher.Constraint("Horizontal", 5),
    Sketcher.Constraint("Vertical", 6),
    Sketcher.Constraint("Horizontal", 7),
    Sketcher.Constraint("Vertical", 8),
    Sketcher.Constraint("Horizontal", 9),
    Sketcher.Constraint("Vertical", 10),
    Sketcher.Constraint("Horizontal", 11),
    Sketcher.Constraint("Vertical", 12),
    Sketcher.Constraint("Horizontal", 13),
    Sketcher.Constraint("Vertical", 14),
    Sketcher.Constraint("Horizontal", 15),
    Sketcher.Constraint("Equal", 3, 5),
    Sketcher.Constraint("Equal", 7, 9),
    Sketcher.Constraint("Equal", 11, 13),
    Sketcher.Constraint("Equal", 2, 4),
    Sketcher.Constraint("Equal", 6, 8),
    Sketcher.Constraint("Equal", 10, 12),
    Sketcher.Constraint("DistanceX", 1, 1, 1, 2, Q("0.8 mm")),
    Sketcher.Constraint("DistanceY", 0, 1, 0, 2, Q("1.25 mm")),
    Sketcher.Constraint("DistanceX", 4, 2, -1, 1, Q("0.4 mm")),
    Sketcher.Constraint("DistanceX", 0, 2, -1, 1, Q("4.25 mm")),
    Sketcher.Constraint("DistanceY", 1, 2, 4, 2, Q("0.625 mm")),
    Sketcher.Constraint("DistanceY", -1, 1, 0, 2, Q("9.16243 mm")),
    Sketcher.Constraint("DistanceX", 8, 2, -1, 1, Q("10.482051 mm")),
    Sketcher.Constraint("DistanceY", -1, 1, 12, 2, Q("6.032051 mm")),
    Sketcher.Constraint("DistanceY", -1, 1, 8, 2, Q("2.457437 mm")),
    Sketcher.Constraint("DistanceX", -1, 1, 12, 2, Q("8.042563 mm")),
])
pad10 = doc.addObject("PartDesign::Pad", "Pad009")
body.addObject(pad10)
pad10.Profile = sketch15
pad10.Length = 0.5
pad10.Reversed = True

doc.recompute()
